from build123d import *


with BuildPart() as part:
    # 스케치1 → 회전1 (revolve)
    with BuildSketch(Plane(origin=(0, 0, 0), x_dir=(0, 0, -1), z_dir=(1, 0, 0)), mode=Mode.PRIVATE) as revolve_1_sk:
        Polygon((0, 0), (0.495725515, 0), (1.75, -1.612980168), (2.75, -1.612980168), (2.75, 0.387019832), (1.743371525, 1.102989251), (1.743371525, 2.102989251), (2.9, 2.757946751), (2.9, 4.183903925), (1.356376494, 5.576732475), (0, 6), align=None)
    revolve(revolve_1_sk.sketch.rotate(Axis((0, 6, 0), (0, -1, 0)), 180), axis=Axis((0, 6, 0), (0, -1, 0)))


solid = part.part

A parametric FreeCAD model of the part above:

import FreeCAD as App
import Part
import Sketcher

doc = App.newDocument("Part")
params = doc.addObject("Spreadsheet::Sheet", "Params")
for row, (alias, value) in enumerate([
    ("sketch1_width", "2 mm"),
    ("sketch1_width2", "1 mm"),
    ("sketch1_width3", "6 mm"),
    ("revolution_angle", "360 deg"),
], start=1):
    params.set(f"A{row}", alias)
    params.set(f"B{row}", "=" + value)
    params.setAlias(f"B{row}", alias)

body = doc.addObject("PartDesign::Body", "Body")

sketch1 = doc.addObject("Sketcher::SketchObject", "Sketch")
body.addObject(sketch1)
sketch1.AttachmentSupport = (doc.YZ_Plane, [""])
sketch1.MapMode = "FlatFace"
sketch1.addGeometry([
    Part.LineSegment(App.Vector(0, 0, 0), App.Vector(0, -0.5, 0)),
    Part.LineSegment(App.Vector(0, -0.5, 0), App.Vector(-1.61, -1.75, 0)),
    Part.LineSegment(App.Vector(-1.61, -1.75, 0), App.Vector(-1.61, -2.75, 0)),
    Part.LineSegment(App.Vector(-1.61, -2.75, 0), App.Vector(0.39, -2.75, 0)),
    Part.LineSegment(App.Vector(0.39, -2.75, 0), App.Vector(1.1, -1.74, 0)),
    Part.LineSegment(App.Vector(1.1, -1.74, 0), App.Vector(2.1, -1.74, 0)),
    Part.LineSegment(App.Vector(2.1, -1.74, 0), App.Vector(2.76, -2.9, 0)),
    Part.LineSegment(App.Vector(2.76, -2.9, 0), App.Vector(4.18, -2.9, 0)),
    Part.LineSegment(App.Vector(4.18, -2.9, 0), App.Vector(5.58, -1.36, 0)),
    Part.LineSegment(App.Vector(5.58, -1.36, 0), App.Vector(6, 0, 0)),
    Part.LineSegment(App.Vector(6, 0, 0), App.Vector(0, 0, 0)),
], False)
sketch1.addConstraint([
    Sketcher.Constraint("Coincident", 0, 2, 1, 1),
    Sketcher.Constraint("Coincident", 1, 2, 2, 1),
    Sketcher.Constraint("Coincident", 2, 2, 3, 1),
    Sketcher.Constraint("Coincident", 3, 2, 4, 1),
    Sketcher.Constraint("Coincident", 4, 2, 5, 1),
    Sketcher.Constraint("Coincident", 5, 2, 6, 1),
    Sketcher.Constraint("Coincident", 6, 2, 7, 1),
    Sketcher.Constraint("Coincident", 7, 2, 8, 1),
    Sketcher.Constraint("Coincident", 8, 2, 9, 1),
    Sketcher.Constraint("Coincident", 9, 2, 10, 1),
    Sketcher.Constraint("Coincident", 10, 2, 0, 1),
    Sketcher.Constraint("Vertical", 0),
    Sketcher.Constraint("Vertical", 2),
    Sketcher.Constraint("Horizontal", 3),
    Sketcher.Constraint("Horizontal", 5),
    Sketcher.Constraint("Horizontal", 7),
    Sketcher.Constraint("Horizontal", 10),
    Sketcher.Constraint("Coincident", 10, 2, -1, 1),
    Sketcher.Constraint("Equal", 5, 2),
    Sketcher.Constraint("DistanceX", 3, 1, 3, 2, 2.0),
    Sketcher.Constraint("DistanceX", 5, 1, 5, 2, 1.0),
    Sketcher.Constraint("DistanceX", 10, 2, 10, 1, 6.0),
    Sketcher.Constraint("DistanceY", 6, 2, -1, 1, 2.9),
    Sketcher.Constraint("DistanceY", 1, 2, -1, 1, 1.75),
    Sketcher.Constraint("Distance", 1, 2.04326),
    Sketcher.Constraint("Distance", 4, 1.235279),
    Sketcher.Constraint("Distance", 8, 2.079121),
    Sketcher.Constraint("DistanceX", 7, 1, 7, 2, 1.425957),
    Sketcher.Constraint("DistanceY", 0, 2, 0, 1, 0.495726),
    Sketcher.Constraint("DistanceX", -1, 1, 4, 2, 1.102989),
    Sketcher.Constraint("DistanceX", 7, 2, 8, 2, 1.392829),
    Sketcher.Constraint("Distance", 6, 1.329195),
])
sketch1.setExpression("Constraints[19]", "Params.sketch1_width")
sketch1.setExpression("Constraints[20]", "Params.sketch1_width2")
sketch1.setExpression("Constraints[21]", "Params.sketch1_width3")
revolution = doc.addObject("PartDesign::Revolution", "Revolution")
body.addObject(revolution)
revolution.Profile = sketch1
revolution.ReferenceAxis = (sketch1, ["H_Axis"])
revolution.setExpression("Angle", "Params.revolution_angle")

doc.recompute()
